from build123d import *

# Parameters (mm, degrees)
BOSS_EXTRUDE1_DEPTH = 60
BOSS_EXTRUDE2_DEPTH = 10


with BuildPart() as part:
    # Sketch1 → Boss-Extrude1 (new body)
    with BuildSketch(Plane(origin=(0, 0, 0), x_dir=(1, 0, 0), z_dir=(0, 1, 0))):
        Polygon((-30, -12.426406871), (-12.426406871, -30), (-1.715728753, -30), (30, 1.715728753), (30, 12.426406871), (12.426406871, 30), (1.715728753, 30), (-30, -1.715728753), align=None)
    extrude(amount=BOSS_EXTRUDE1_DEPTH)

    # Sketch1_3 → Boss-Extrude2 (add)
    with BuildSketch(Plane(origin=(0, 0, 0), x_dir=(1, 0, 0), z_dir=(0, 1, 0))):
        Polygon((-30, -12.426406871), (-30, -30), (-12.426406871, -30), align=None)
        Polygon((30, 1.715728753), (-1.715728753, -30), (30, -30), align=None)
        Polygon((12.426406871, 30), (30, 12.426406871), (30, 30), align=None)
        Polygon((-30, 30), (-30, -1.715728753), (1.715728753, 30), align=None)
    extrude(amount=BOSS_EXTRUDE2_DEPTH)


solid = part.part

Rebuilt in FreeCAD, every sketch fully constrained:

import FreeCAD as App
import Part
import Sketcher
from FreeCAD import Vector
Q = App.Units.Quantity


def add_polygon(sketch, points):
    """Adds a closed chain of lines whose ends are joined by coincident constraints."""
    first, n = sketch.GeometryCount, len(points)
    for a, b in zip(points, points[1:] + points[:1]):
        sketch.addGeometry(Part.LineSegment(App.Vector(*a, 0), App.Vector(*b, 0)), False)
    for i in range(n):
        sketch.addConstraint(Sketcher.Constraint("Coincident", first + i, 2, first + (i + 1) % n, 1))

doc = App.newDocument("Part")
body = doc.addObject("PartDesign::Body", "Body")

sketch1 = doc.addObject("Sketcher::SketchObject", "Sketch")
body.addObject(sketch1)
sketch1.AttachmentSupport = (doc.XZ_Plane, [""])
sketch1.MapMode = "FlatFace"
add_polygon(sketch1, [(-30, 12), (-12, 30), (-2, 30), (30, -2), (30, -12), (12, -30), (2, -30), (-30, 2)])
sketch1.addConstraint([
    Sketcher.Constraint("Horizontal", 1),
    Sketcher.Constraint("Vertical", 3),
    Sketcher.Constraint("Horizontal", 5),
    Sketcher.Constraint("Vertical", 7),
    Sketcher.Constraint("Symmetric", 0, 2, 4, 2, -1, 1),
    Sketcher.Constraint("Symmetric", 2, 2, 6, 2, -1, 1),
    Sketcher.Constraint("Perpendicular", 0, 2),
    Sketcher.Constraint("Perpendicular", 2, 4),
    Sketcher.Constraint("Perpendicular", 4, 6),
    Sketcher.Constraint("Equal", 5, 3),
    Sketcher.Constraint("Angle", 0, Q("45 deg")),
    Sketcher.Constraint("DistanceY", -1, 1, 0, 2, Q("30 mm")),
    Sketcher.Constraint("DistanceX", 1, 1, 1, 2, Q("10.710678 mm")),
    Sketcher.Constraint("DistanceX", 1, 2, -1, 1, Q("1.715729 mm")),
])
pad1 = doc.addObject("PartDesign::Pad", "Pad")
body.addObject(pad1)
pad1.Profile = sketch1
pad1.Length = 60
pad1.Reversed = True

sketch2 = doc.addObject("Sketcher::SketchObject", "Sketch001")
body.addObject(sketch2)
sketch2.AttachmentSupport = (doc.XZ_Plane, [""])
sketch2.MapMode = "FlatFace"
add_polygon(sketch2, [(-30, 12), (-30, 30), (-12, 30)])
add_polygon(sketch2, [(30, -2), (-2, 30), (30, 30)])
add_polygon(sketch2, [(12, -30), (30, -12), (30, -30)])
add_polygon(sketch2, [(-30, -30), (-30, 2), (2, -30)])
sketch2.addConstraint([
    Sketcher.Constraint("Vertical", 0),
    Sketcher.Constraint("Horizontal", 1),
    Sketcher.Constraint("Horizontal", 4),
    Sketcher.Constraint("Vertical", 5),
    Sketcher.Constraint("Vertical", 7),
    Sketcher.Constraint("Horizontal", 8),
    Sketcher.Constraint("Vertical", 9),
    Sketcher.Constraint("Horizontal", 11),
    Sketcher.Constraint("Symmetric", 2, 2, 6, 2, -1, 1),
    Sketcher.Constraint("Symmetric", 1, 2, 8, 2, -1, 1),
    Sketcher.Constraint("Symmetric", 5, 2, 9, 2, -1, 1),
    Sketcher.Constraint("Symmetric", 3, 2, 10, 2, -1, 1),
    Sketcher.Constraint("Symmetric", 0, 2, 4, 2, -2),
    Sketcher.Constraint("Perpendicular", 2, 3),
    Sketcher.Constraint("Equal", 8, 0),
    Sketcher.Constraint("DistanceX", 0, 2, -1, 1, Q("30 mm")),
    Sketcher.Constraint("DistanceY", -1, 1, 0, 2, Q("30 mm")),
    Sketcher.Constraint("DistanceX", 4, 1, 4, 2, Q("31.715729 mm")),
    Sketcher.Constraint("DistanceX", 1, 1, 1, 2, Q("17.573593 mm")),
])
pad2 = doc.addObject("PartDesign::Pad", "Pad001")
body.addObject(pad2)
pad2.Profile = sketch2
pad2.Length = 10
pad2.Reversed = True

doc.recompute()
